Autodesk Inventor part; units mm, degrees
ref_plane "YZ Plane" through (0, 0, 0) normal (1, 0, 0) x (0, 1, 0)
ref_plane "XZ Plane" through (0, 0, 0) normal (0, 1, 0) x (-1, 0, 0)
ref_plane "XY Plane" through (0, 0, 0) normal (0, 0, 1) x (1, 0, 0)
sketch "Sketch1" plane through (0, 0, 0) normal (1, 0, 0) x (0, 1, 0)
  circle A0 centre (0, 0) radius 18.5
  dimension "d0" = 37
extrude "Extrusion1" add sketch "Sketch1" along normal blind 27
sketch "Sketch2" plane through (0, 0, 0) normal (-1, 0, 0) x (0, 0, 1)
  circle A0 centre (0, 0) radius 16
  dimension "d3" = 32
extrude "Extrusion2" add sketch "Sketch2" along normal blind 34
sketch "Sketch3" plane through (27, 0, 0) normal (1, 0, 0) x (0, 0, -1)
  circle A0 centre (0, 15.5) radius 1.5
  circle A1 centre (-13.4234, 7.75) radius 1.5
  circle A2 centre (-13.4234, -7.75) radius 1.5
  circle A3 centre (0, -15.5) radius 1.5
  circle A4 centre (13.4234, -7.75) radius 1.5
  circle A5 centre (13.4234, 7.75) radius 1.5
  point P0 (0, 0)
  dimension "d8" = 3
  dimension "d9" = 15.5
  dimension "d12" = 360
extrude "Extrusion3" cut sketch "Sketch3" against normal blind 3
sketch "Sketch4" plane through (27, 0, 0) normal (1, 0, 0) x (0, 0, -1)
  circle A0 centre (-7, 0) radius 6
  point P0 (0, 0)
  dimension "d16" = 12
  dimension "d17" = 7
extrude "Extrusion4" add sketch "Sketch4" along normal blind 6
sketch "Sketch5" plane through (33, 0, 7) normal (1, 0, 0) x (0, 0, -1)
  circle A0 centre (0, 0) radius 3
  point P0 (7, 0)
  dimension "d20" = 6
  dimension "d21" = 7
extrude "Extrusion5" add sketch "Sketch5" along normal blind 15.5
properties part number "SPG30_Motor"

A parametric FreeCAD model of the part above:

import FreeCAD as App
import Part
import Sketcher

V = App.Vector

doc = App.newDocument("Part")
params = doc.addObject("Spreadsheet::Sheet", "Params")
for row, (alias, value) in enumerate([
    ("sketch1_diameter", "37 mm"),
    ("pad1_length", "27 mm"),
    ("sketch2_diameter", "32 mm"),
    ("pad2_length", "34 mm"),
    ("sketch3_diameter", "3 mm"),
    ("pocket1_length", "3 mm"),
    ("sketch4_diameter", "12 mm"),
    ("pad3_length", "6 mm"),
    ("sketch5_diameter", "6 mm"),
    ("pad4_length", "15.5 mm"),
], start=1):
    params.set(f"A{row}", alias)
    params.set(f"B{row}", "=" + value)
    params.setAlias(f"B{row}", alias)

body = doc.addObject("PartDesign::Body", "Body")

sketch1 = body.newObject("Sketcher::SketchObject", "Sketch")
sketch1.AttachmentSupport = (doc.getObject("YZ_Plane"), [""])
sketch1.MapMode = "FlatFace"
sketch1.addGeometry(Part.Circle(V(0, 0, 0), V(0, 0, 1), 18), False)
sketch1.addConstraint([
    Sketcher.Constraint("Coincident", 0, 3, -1, 1),
    Sketcher.Constraint("Diameter", 0, 37.0),
])
sketch1.setExpression("Constraints[1]", "Params.sketch1_diameter")
pad1 = body.newObject("PartDesign::Pad", "Pad")
pad1.Profile = sketch1
pad1.setExpression("Length", "Params.pad1_length")

sketch2 = body.newObject("Sketcher::SketchObject", "Sketch001")
sketch2.AttachmentSupport = (doc.getObject("YZ_Plane"), [""])
sketch2.MapMode = "FlatFace"
sketch2.addGeometry(Part.Circle(V(0, 0, 0), V(0, 0, 1), 16), False)
sketch2.addConstraint([
    Sketcher.Constraint("Coincident", 0, 3, -1, 1),
    Sketcher.Constraint("Diameter", 0, 32.0),
])
sketch2.setExpression("Constraints[1]", "Params.sketch2_diameter")
pad2 = body.newObject("PartDesign::Pad", "Pad001")
pad2.Profile = sketch2
pad2.setExpression("Length", "Params.pad2_length")
pad2.Reversed = True

sketch3 = body.newObject("Sketcher::SketchObject", "Sketch002")
sketch3.AttachmentSupport = (doc.getObject("YZ_Plane"), [""])
sketch3.MapMode = "FlatFace"
sketch3.AttachmentOffset = App.Placement(V(0, 0, 27), App.Rotation())
sketch3.addGeometry([
    Part.Circle(V(15.5, 0, 0), V(0, 0, 1), 1.5),
    Part.Circle(V(7.8, 13.4, 0), V(0, 0, 1), 1.5),
    Part.Circle(V(-7.8, 13.4, 0), V(0, 0, 1), 1.5),
    Part.Circle(V(-15.5, 0, 0), V(0, 0, 1), 1.5),
    Part.Circle(V(-7.8, -13.4, 0), V(0, 0, 1), 1.5),
    Part.Circle(V(7.8, -13.4, 0), V(0, 0, 1), 1.5),
], False)
sketch3.addConstraint([
    Sketcher.Constraint("Equal", 0, 1),
    Sketcher.Constraint("Equal", 1, 2),
    Sketcher.Constraint("Equal", 2, 3),
    Sketcher.Constraint("Equal", 3, 4),
    Sketcher.Constraint("Equal", 4, 5),
    Sketcher.Constraint("Symmetric", 0, 3, 3, 3, -1, 1),
    Sketcher.Constraint("Symmetric", 1, 3, 4, 3, -1, 1),
    Sketcher.Constraint("Symmetric", 2, 3, 5, 3, -1, 1),
    Sketcher.Constraint("Symmetric", 1, 3, 2, 3, -2),
    Sketcher.Constraint("PointOnObject", 0, 3, -1),
    Sketcher.Constraint("Diameter", 0, 3.0),
    Sketcher.Constraint("DistanceX", -1, 1, 0, 3, 15.5),
    Sketcher.Constraint("DistanceX", 2, 3, 1, 3, 15.5),
    Sketcher.Constraint("DistanceY", -1, 1, 1, 3, 13.4234),
])
sketch3.setExpression("Constraints[10]", "Params.sketch3_diameter")
pocket1 = body.newObject("PartDesign::Pocket", "Pocket")
pocket1.Profile = sketch3
pocket1.setExpression("Length", "Params.pocket1_length")

sketch4 = body.newObject("Sketcher::SketchObject", "Sketch003")
sketch4.AttachmentSupport = (doc.getObject("YZ_Plane"), [""])
sketch4.MapMode = "FlatFace"
sketch4.AttachmentOffset = App.Placement(V(0, 0, 27), App.Rotation())
sketch4.addGeometry(Part.Circle(V(0, 7, 0), V(0, 0, 1), 6), False)
sketch4.addConstraint([
    Sketcher.Constraint("PointOnObject", 0, 3, -2),
    Sketcher.Constraint("Diameter", 0, 12.0),
    Sketcher.Constraint("DistanceY", -1, 1, 0, 3, 7.0),
])
sketch4.setExpression("Constraints[1]", "Params.sketch4_diameter")
pad3 = body.newObject("PartDesign::Pad", "Pad002")
pad3.Profile = sketch4
pad3.setExpression("Length", "Params.pad3_length")

sketch5 = body.newObject("Sketcher::SketchObject", "Sketch004")
sketch5.AttachmentSupport = (doc.getObject("YZ_Plane"), [""])
sketch5.MapMode = "FlatFace"
sketch5.AttachmentOffset = App.Placement(V(0, 0, 33), App.Rotation())
sketch5.addGeometry(Part.Circle(V(0, 7, 0), V(0, 0, 1), 3), False)
sketch5.addConstraint([
    Sketcher.Constraint("PointOnObject", 0, 3, -2),
    Sketcher.Constraint("Diameter", 0, 6.0),
    Sketcher.Constraint("DistanceY", -1, 1, 0, 3, 7.0),
])
sketch5.setExpression("Constraints[1]", "Params.sketch5_diameter")
pad4 = body.newObject("PartDesign::Pad", "Pad003")
pad4.Profile = sketch5
pad4.setExpression("Length", "Params.pad4_length")

doc.recompute()
